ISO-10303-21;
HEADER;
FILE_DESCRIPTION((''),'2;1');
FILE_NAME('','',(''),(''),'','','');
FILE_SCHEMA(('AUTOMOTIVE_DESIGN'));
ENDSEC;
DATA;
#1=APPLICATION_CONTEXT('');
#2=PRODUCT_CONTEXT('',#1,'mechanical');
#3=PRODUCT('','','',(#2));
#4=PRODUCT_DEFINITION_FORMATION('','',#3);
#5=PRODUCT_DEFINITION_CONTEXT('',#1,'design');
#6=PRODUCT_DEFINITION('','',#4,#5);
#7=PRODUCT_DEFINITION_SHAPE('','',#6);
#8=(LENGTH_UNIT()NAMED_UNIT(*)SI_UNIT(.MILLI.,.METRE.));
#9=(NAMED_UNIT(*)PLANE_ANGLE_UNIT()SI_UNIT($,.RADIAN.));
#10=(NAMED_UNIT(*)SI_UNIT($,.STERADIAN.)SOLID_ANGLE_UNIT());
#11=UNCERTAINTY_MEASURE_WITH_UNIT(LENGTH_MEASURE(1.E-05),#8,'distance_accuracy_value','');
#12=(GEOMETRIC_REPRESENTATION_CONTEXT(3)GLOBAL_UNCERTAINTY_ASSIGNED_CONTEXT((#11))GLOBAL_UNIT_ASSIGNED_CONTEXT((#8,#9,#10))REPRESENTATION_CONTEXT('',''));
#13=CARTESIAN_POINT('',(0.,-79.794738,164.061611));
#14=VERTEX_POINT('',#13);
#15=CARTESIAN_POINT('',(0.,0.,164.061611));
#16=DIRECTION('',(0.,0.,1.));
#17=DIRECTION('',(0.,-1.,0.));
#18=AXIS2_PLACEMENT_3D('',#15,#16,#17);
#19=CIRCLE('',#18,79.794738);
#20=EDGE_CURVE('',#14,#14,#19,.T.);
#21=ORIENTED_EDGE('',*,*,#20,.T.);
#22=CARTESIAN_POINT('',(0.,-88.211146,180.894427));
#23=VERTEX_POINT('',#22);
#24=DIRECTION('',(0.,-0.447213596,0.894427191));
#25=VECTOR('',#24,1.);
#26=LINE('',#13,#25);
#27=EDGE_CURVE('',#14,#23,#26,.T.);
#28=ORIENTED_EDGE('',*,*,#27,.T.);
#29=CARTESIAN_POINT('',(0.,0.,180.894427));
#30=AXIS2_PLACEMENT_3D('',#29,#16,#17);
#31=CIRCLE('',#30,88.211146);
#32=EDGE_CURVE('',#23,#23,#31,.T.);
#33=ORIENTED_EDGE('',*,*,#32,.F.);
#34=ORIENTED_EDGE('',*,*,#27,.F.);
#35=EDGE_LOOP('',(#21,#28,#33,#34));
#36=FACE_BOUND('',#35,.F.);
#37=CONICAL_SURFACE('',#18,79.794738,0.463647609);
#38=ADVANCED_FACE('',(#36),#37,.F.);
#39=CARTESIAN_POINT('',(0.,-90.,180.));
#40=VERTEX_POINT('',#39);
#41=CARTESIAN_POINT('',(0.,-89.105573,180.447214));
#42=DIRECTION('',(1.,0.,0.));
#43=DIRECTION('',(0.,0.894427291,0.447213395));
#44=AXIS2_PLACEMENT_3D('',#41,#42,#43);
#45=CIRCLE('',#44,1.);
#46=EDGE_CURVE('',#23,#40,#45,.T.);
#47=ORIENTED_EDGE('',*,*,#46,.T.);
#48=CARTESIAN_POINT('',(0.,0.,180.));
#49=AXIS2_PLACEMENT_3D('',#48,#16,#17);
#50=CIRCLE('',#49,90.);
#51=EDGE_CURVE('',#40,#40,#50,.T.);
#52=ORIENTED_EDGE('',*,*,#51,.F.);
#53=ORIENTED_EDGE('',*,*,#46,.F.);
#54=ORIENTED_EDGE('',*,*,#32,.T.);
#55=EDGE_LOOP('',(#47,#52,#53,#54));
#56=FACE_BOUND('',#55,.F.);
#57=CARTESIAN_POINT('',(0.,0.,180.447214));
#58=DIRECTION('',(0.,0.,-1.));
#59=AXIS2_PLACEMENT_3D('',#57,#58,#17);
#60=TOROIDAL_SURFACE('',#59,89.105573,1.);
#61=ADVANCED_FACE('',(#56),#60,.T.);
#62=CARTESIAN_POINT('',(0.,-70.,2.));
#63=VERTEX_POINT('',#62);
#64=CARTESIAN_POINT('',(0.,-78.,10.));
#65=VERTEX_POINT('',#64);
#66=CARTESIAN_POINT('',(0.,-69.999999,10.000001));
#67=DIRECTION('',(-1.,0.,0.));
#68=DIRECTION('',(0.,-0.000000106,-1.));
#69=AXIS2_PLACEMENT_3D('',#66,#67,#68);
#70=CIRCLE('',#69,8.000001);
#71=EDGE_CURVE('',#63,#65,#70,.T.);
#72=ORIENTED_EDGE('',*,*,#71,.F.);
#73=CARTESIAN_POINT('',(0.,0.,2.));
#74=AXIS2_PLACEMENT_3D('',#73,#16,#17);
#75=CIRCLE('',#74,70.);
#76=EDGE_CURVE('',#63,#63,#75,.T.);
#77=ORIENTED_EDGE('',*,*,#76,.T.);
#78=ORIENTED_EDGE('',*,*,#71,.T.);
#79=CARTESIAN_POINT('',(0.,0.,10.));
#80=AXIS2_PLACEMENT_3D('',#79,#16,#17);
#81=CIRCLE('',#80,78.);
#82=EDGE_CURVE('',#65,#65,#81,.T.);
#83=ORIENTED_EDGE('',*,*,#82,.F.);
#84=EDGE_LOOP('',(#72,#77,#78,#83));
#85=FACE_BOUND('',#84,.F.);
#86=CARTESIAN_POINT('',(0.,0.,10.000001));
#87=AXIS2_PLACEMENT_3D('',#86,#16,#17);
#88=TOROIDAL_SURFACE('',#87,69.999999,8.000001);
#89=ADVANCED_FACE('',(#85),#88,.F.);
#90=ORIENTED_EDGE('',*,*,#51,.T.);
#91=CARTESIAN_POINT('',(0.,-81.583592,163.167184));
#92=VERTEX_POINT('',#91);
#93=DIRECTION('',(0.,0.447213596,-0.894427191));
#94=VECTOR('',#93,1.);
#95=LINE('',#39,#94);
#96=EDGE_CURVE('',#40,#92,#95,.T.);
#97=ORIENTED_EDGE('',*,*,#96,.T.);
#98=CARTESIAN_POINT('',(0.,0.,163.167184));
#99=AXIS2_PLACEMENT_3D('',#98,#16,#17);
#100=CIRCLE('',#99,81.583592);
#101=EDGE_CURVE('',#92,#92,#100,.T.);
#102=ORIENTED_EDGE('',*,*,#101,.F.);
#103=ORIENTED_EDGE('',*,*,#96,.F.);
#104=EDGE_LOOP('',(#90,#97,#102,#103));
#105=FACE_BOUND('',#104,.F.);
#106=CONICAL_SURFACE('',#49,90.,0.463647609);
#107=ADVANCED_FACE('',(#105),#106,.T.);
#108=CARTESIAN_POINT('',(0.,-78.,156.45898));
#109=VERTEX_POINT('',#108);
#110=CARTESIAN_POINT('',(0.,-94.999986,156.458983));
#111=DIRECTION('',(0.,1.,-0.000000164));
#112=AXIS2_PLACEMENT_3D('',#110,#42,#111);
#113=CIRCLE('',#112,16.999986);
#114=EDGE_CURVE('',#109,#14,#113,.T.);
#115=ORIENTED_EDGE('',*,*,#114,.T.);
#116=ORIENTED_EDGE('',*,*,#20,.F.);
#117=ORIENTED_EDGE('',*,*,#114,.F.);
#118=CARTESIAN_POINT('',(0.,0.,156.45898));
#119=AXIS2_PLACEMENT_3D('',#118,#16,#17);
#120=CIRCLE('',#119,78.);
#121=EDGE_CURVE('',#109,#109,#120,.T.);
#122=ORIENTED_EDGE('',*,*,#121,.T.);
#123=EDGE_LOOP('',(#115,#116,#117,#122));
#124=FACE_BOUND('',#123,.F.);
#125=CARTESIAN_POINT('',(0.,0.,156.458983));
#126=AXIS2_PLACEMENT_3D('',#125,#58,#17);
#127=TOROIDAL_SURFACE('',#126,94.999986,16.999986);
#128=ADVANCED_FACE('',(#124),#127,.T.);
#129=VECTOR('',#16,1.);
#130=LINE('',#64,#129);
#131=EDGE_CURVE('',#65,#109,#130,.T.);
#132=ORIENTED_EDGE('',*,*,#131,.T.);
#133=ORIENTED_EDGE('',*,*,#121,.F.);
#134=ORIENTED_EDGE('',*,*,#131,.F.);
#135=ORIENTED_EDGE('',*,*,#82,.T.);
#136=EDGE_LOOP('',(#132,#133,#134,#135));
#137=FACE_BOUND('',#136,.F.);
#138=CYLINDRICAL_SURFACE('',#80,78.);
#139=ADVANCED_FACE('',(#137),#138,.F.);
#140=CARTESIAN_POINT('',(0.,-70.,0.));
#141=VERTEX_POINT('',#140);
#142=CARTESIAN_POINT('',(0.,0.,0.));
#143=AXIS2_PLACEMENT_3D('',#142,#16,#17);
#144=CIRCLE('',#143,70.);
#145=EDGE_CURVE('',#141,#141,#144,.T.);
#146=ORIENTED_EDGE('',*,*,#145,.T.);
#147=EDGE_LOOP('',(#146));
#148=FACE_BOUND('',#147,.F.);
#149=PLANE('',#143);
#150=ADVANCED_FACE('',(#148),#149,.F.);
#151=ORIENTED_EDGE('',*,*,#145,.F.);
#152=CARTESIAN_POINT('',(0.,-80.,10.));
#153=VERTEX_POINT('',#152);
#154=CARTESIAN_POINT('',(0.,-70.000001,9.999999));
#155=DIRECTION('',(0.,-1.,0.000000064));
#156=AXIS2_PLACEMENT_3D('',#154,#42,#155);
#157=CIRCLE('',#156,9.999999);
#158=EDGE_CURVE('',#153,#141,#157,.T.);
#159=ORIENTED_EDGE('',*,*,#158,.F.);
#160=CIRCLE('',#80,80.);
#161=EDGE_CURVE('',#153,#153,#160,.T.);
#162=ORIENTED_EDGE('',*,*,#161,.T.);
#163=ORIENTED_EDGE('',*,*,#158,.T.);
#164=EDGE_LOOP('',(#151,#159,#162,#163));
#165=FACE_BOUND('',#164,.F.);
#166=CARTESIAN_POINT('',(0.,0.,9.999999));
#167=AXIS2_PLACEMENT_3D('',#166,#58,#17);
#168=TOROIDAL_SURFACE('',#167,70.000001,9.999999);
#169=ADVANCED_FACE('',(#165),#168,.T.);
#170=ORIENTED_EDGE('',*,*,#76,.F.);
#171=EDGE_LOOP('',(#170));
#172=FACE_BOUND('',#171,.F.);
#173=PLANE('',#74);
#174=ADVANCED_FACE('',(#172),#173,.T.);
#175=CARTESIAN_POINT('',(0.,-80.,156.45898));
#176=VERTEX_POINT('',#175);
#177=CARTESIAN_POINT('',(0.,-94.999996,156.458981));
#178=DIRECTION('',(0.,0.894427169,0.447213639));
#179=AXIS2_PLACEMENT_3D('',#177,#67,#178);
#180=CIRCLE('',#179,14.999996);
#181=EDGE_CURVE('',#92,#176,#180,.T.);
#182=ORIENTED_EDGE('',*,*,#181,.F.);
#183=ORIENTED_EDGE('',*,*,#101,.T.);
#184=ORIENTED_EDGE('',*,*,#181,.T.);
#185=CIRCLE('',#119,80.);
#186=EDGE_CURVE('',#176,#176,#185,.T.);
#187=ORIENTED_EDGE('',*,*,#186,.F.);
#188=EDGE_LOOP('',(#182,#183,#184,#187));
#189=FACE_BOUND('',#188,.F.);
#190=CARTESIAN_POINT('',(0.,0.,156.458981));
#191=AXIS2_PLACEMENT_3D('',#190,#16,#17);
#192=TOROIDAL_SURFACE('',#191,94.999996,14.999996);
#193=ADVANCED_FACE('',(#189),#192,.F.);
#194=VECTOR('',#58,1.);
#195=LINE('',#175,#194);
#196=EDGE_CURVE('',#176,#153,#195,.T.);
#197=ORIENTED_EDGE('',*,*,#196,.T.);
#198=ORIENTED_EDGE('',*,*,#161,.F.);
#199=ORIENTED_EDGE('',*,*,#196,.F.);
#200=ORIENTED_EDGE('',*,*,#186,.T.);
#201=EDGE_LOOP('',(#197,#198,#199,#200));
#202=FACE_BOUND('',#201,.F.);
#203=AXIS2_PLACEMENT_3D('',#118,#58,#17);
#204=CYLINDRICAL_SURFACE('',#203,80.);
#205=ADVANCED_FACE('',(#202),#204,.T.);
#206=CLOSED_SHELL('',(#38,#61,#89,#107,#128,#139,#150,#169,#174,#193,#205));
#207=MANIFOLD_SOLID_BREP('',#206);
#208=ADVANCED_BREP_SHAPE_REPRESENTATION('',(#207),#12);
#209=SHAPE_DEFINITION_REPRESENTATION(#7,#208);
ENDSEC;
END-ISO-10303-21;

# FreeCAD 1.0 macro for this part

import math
import FreeCAD as App
import Part
import Sketcher
from FreeCAD import Vector
Q = App.Units.Quantity

doc = App.newDocument("Part")
body = doc.addObject("PartDesign::Body", "Body")

sketch1 = body.newObject("Sketcher::SketchObject", "Sketch")
sketch1.AttachmentSupport = (doc.getObject("YZ_Plane"), [""])
sketch1.MapMode = "FlatFace"
sketch1.addGeometry(Part.LineSegment(Vector(-70, 0, 0), Vector(0, 0, 0)), False)
sketch1.addGeometry(Part.LineSegment(Vector(0, 0, 0), Vector(0, 2, 0)), False)
sketch1.addGeometry(Part.LineSegment(Vector(0, 2, 0), Vector(-70, 2, 0)), False)
sketch1.addGeometry(Part.ArcOfCircle(Part.Circle(Vector(-69.999999, 10.000001, 0), Vector(0, 0, 1), 8.000001), math.radians(-179.999994), math.radians(-90.000006)), False)
sketch1.addGeometry(Part.LineSegment(Vector(-78, 10, 0), Vector(-78, 156.45898, 0)), False)
sketch1.addGeometry(Part.ArcOfCircle(Part.Circle(Vector(-94.999986, 156.458983, 0), Vector(0, 0, 1), 16.999986), math.radians(-0.000009), math.radians(26.565065)), False)
sketch1.addGeometry(Part.LineSegment(Vector(-79.794738, 164.061611, 0), Vector(-88.211146, 180.894427, 0)), False)
sketch1.addGeometry(Part.ArcOfCircle(Part.Circle(Vector(-89.105573, 180.447214, 0), Vector(0, 0, 1), 1), math.radians(26.565038), math.radians(206.565064)), False)
sketch1.addGeometry(Part.LineSegment(Vector(-90, 180, 0), Vector(-81.583592, 163.167184, 0)), False)
sketch1.addGeometry(Part.ArcOfCircle(Part.Circle(Vector(-94.999996, 156.458981, 0), Vector(0, 0, 1), 14.999996), math.radians(-0.000005), math.radians(26.565054)), False)
sketch1.addGeometry(Part.LineSegment(Vector(-80, 156.45898, 0), Vector(-80, 10, 0)), False)
sketch1.addGeometry(Part.ArcOfCircle(Part.Circle(Vector(-70.000001, 9.999999, 0), Vector(0, 0, 1), 9.999999), math.radians(179.999996), math.radians(270.000004)), False)
sketch1.addConstraint(Sketcher.Constraint("Coincident", 0, 2, 1, 1))
sketch1.addConstraint(Sketcher.Constraint("Coincident", 1, 2, 2, 1))
sketch1.addConstraint(Sketcher.Constraint("Tangent", 2, 2, 3, 2))
sketch1.addConstraint(Sketcher.Constraint("Tangent", 3, 1, 4, 1))
sketch1.addConstraint(Sketcher.Constraint("Tangent", 4, 2, 5, 1))
sketch1.addConstraint(Sketcher.Constraint("Tangent", 5, 2, 6, 1))
sketch1.addConstraint(Sketcher.Constraint("Tangent", 6, 2, 7, 1))
sketch1.addConstraint(Sketcher.Constraint("Tangent", 7, 2, 8, 1))
sketch1.addConstraint(Sketcher.Constraint("Tangent", 8, 2, 9, 2))
sketch1.addConstraint(Sketcher.Constraint("Tangent", 9, 1, 10, 1))
sketch1.addConstraint(Sketcher.Constraint("Tangent", 10, 2, 11, 1))
sketch1.addConstraint(Sketcher.Constraint("Tangent", 11, 2, 0, 1))
sketch1.addConstraint(Sketcher.Constraint("Horizontal", 0))
sketch1.addConstraint(Sketcher.Constraint("Vertical", 1))
sketch1.addConstraint(Sketcher.Constraint("Horizontal", 2))
sketch1.addConstraint(Sketcher.Constraint("Vertical", 4))
sketch1.addConstraint(Sketcher.Constraint("Vertical", 10))
sketch1.addConstraint(Sketcher.Constraint("Coincident", 0, 2, -1, 1))
sketch1.addConstraint(Sketcher.Constraint("Coincident", 11, 3, 3, 3))
sketch1.addConstraint(Sketcher.Constraint("Parallel", 6, 8))
sketch1.addConstraint(Sketcher.Constraint("Horizontal", 5, 3, 9, 3))
sketch1.addConstraint(Sketcher.Constraint("Equal", 6, 8))
sketch1.addConstraint(Sketcher.Constraint("Radius", 3, Q("8.000001 mm")))
sketch1.addConstraint(Sketcher.Constraint("Radius", 7, Q("1 mm")))
sketch1.addConstraint(Sketcher.Constraint("DistanceX", 0, 1, 0, 2, Q("70 mm")))
sketch1.addConstraint(Sketcher.Constraint("DistanceX", 7, 2, -1, 1, Q("90 mm")))
sketch1.addConstraint(Sketcher.Constraint("DistanceY", -1, 1, 7, 2, Q("180 mm")))
sketch1.addConstraint(Sketcher.Constraint("Radius", 5, Q("16.999986 mm")))
sketch1.addConstraint(Sketcher.Constraint("DistanceY", 4, 1, 4, 2, Q("146.45898 mm")))
revolution = body.newObject("PartDesign::Revolution", "Revolution")
revolution.Profile = sketch1
revolution.ReferenceAxis = (sketch1, ["V_Axis"])
revolution.Angle = 360

doc.recompute()
